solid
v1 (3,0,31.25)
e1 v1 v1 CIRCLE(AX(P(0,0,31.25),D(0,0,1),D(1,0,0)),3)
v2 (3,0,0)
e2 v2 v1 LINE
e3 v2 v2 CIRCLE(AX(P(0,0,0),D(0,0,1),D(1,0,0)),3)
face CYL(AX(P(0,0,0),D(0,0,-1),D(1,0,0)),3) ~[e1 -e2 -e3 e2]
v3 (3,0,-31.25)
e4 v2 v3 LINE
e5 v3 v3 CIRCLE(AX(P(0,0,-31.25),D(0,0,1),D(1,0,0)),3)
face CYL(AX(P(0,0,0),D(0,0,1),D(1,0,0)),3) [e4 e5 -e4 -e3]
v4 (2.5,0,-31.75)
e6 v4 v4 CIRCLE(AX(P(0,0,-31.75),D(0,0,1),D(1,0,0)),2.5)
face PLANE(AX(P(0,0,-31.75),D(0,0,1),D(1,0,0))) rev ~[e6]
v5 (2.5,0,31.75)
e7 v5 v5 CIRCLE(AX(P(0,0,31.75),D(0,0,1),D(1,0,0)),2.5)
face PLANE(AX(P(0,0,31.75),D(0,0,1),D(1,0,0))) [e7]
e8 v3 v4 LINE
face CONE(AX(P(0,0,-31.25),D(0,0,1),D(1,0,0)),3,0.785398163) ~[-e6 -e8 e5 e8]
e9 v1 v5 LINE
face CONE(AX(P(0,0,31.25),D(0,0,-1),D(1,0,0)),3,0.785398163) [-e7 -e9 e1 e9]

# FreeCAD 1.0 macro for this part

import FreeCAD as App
import Part
import Sketcher
from FreeCAD import Vector


def edges_at(feature, points):
    """Names of the edges that pass closest to the given points."""
    edges = feature.Shape.Edges
    near = lambda p: min(range(len(edges)), key=lambda i: edges[i].distToShape(Part.Vertex(*p))[0])
    return sorted({f"Edge{near(p) + 1}" for p in points})

doc = App.newDocument("Part")
params = doc.addObject("Spreadsheet::Sheet", "Params")
for row, (alias, value) in enumerate([
    ("sketch1_diameter", "6 mm"),
    ("pad1_length", "63.5 mm"),
    ("chamfer_size", "0.5 mm"),
], start=1):
    params.set(f"A{row}", alias)
    params.set(f"B{row}", "=" + value)
    params.setAlias(f"B{row}", alias)

body = doc.addObject("PartDesign::Body", "Body")

sketch1 = body.newObject("Sketcher::SketchObject", "Sketch")
sketch1.AttachmentSupport = (doc.getObject("XY_Plane"), [""])
sketch1.MapMode = "FlatFace"
sketch1.addGeometry(Part.Circle(Vector(0, 0, 0), Vector(0, 0, 1), 3), False)
sketch1.addConstraint(Sketcher.Constraint("Coincident", 0, 3, -1, 1))
sketch1.addConstraint(Sketcher.Constraint("Diameter", 0, 6.0))
sketch1.setExpression("Constraints[1]", "Params.sketch1_diameter")
pad1 = body.newObject("PartDesign::Pad", "Pad")
pad1.Profile = sketch1
pad1.setExpression("Length", "Params.pad1_length")
pad1.Midplane = True
doc.recompute()

chamfer = body.newObject("PartDesign::Chamfer", "Chamfer")
chamfer.Base = (pad1, edges_at(pad1, [(-3, 0, 31.75), (-3, 0, -31.75)]))
chamfer.setExpression("Size", "Params.chamfer_size")

doc.recompute()
